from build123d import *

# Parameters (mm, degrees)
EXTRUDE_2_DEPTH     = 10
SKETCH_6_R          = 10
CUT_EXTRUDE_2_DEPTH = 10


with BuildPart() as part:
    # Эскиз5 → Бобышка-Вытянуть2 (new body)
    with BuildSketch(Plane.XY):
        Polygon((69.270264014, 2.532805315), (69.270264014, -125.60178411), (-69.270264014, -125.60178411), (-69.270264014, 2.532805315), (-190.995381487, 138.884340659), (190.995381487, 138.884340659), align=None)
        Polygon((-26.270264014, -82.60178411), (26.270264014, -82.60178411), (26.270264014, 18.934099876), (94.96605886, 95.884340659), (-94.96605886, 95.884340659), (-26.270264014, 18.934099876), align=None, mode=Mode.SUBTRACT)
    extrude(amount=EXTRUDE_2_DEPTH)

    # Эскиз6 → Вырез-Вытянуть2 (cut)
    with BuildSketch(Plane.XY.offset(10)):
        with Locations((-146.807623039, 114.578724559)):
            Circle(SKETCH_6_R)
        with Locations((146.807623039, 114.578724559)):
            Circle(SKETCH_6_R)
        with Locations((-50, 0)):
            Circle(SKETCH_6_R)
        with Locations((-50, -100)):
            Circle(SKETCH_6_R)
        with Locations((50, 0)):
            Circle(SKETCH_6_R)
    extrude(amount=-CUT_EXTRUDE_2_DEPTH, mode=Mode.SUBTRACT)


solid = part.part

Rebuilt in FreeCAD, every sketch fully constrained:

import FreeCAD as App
import Part
import Sketcher

V = App.Vector
Q = App.Units.Quantity

doc = App.newDocument("Part")
body = doc.addObject("PartDesign::Body", "Body")

# Sketch on XY plane
sketch1 = body.newObject("Sketcher::SketchObject", "Sketch")
sketch1.AttachmentSupport = (doc.getObject("XY_Plane"), [""])
sketch1.MapMode = "FlatFace"
sketch1.addGeometry(Part.LineSegment(V(69, -126, 0), V(69, 3, 0)), False)
sketch1.addGeometry(Part.LineSegment(V(69, 3, 0), V(191, 139, 0)), False)
sketch1.addGeometry(Part.LineSegment(V(191, 139, 0), V(-191, 139, 0)), False)
sketch1.addGeometry(Part.LineSegment(V(-191, 139, 0), V(-69, 3, 0)), False)
sketch1.addGeometry(Part.LineSegment(V(-69, 3, 0), V(-69, -126, 0)), False)
sketch1.addGeometry(Part.LineSegment(V(-69, -126, 0), V(69, -126, 0)), False)
sketch1.addGeometry(Part.LineSegment(V(-26, -83, 0), V(-26, 19, 0)), False)
sketch1.addGeometry(Part.LineSegment(V(-26, 19, 0), V(-95, 96, 0)), False)
sketch1.addGeometry(Part.LineSegment(V(-95, 96, 0), V(95, 96, 0)), False)
sketch1.addGeometry(Part.LineSegment(V(95, 96, 0), V(26, 19, 0)), False)
sketch1.addGeometry(Part.LineSegment(V(26, 19, 0), V(26, -83, 0)), False)
sketch1.addGeometry(Part.LineSegment(V(26, -83, 0), V(-26, -83, 0)), False)
sketch1.addConstraint(Sketcher.Constraint("Coincident", 0, 2, 1, 1))
sketch1.addConstraint(Sketcher.Constraint("Coincident", 1, 2, 2, 1))
sketch1.addConstraint(Sketcher.Constraint("Coincident", 2, 2, 3, 1))
sketch1.addConstraint(Sketcher.Constraint("Coincident", 3, 2, 4, 1))
sketch1.addConstraint(Sketcher.Constraint("Coincident", 4, 2, 5, 1))
sketch1.addConstraint(Sketcher.Constraint("Coincident", 5, 2, 0, 1))
sketch1.addConstraint(Sketcher.Constraint("Coincident", 6, 2, 7, 1))
sketch1.addConstraint(Sketcher.Constraint("Coincident", 7, 2, 8, 1))
sketch1.addConstraint(Sketcher.Constraint("Coincident", 8, 2, 9, 1))
sketch1.addConstraint(Sketcher.Constraint("Coincident", 9, 2, 10, 1))
sketch1.addConstraint(Sketcher.Constraint("Coincident", 10, 2, 11, 1))
sketch1.addConstraint(Sketcher.Constraint("Coincident", 11, 2, 6, 1))
sketch1.addConstraint(Sketcher.Constraint("Vertical", 0))
sketch1.addConstraint(Sketcher.Constraint("Horizontal", 2))
sketch1.addConstraint(Sketcher.Constraint("Vertical", 4))
sketch1.addConstraint(Sketcher.Constraint("Horizontal", 5))
sketch1.addConstraint(Sketcher.Constraint("Vertical", 6))
sketch1.addConstraint(Sketcher.Constraint("Horizontal", 8))
sketch1.addConstraint(Sketcher.Constraint("Vertical", 10))
sketch1.addConstraint(Sketcher.Constraint("Horizontal", 11))
sketch1.addConstraint(Sketcher.Constraint("Symmetric", 0, 2, 3, 2, -2))
sketch1.addConstraint(Sketcher.Constraint("Symmetric", 6, 2, 9, 2, -2))
sketch1.addConstraint(Sketcher.Constraint("Parallel", 3, 7))
sketch1.addConstraint(Sketcher.Constraint("Parallel", 1, 9))
sketch1.addConstraint(Sketcher.Constraint("Equal", 1, 3))
sketch1.addConstraint(Sketcher.Constraint("DistanceX", 3, 2, 6, 2, Q("43 mm")))
sketch1.addConstraint(Sketcher.Constraint("DistanceY", 7, 2, 2, 2, Q("43 mm")))
sketch1.addConstraint(Sketcher.Constraint("DistanceY", 5, 2, 10, 2, Q("43 mm")))
sketch1.addConstraint(Sketcher.Constraint("DistanceX", 5, 1, 5, 2, Q("138.540528 mm")))
sketch1.addConstraint(Sketcher.Constraint("DistanceY", 0, 1, 0, 2, Q("128.134589 mm")))
sketch1.addConstraint(Sketcher.Constraint("DistanceY", -1, 1, 6, 2, Q("18.9341 mm")))
sketch1.addConstraint(Sketcher.Constraint("DistanceX", 2, 2, 2, 1, Q("381.990763 mm")))
sketch1.addConstraint(Sketcher.Constraint("DistanceX", 8, 1, 8, 2, Q("189.932118 mm")))
sketch1.addConstraint(Sketcher.Constraint("DistanceY", 6, 1, 6, 2, Q("101.535884 mm")))
pad1 = body.newObject("PartDesign::Pad", "Pad")
pad1.Profile = sketch1
pad1.Length = 10

# Sketch on XY plane
sketch2 = body.newObject("Sketcher::SketchObject", "Sketch001")
sketch2.AttachmentSupport = (doc.getObject("XY_Plane"), [""])
sketch2.MapMode = "FlatFace"
sketch2.AttachmentOffset = App.Placement(V(0, 0, 10), App.Rotation())
sketch2.addGeometry(Part.Circle(V(-147, 115, 0), V(0, 0, 1), 10), False)
sketch2.addGeometry(Part.Circle(V(147, 115, 0), V(0, 0, 1), 10), False)
sketch2.addGeometry(Part.Circle(V(-50, 0, 0), V(0, 0, 1), 10), False)
sketch2.addGeometry(Part.Circle(V(-50, -100, 0), V(0, 0, 1), 10), False)
sketch2.addGeometry(Part.Circle(V(50, 0, 0), V(0, 0, 1), 10), False)
sketch2.addConstraint(Sketcher.Constraint("Equal", 0, 1))
sketch2.addConstraint(Sketcher.Constraint("Equal", 1, 2))
sketch2.addConstraint(Sketcher.Constraint("Equal", 2, 3))
sketch2.addConstraint(Sketcher.Constraint("Equal", 3, 4))
sketch2.addConstraint(Sketcher.Constraint("Symmetric", 2, 3, 4, 3, -1, 1))
sketch2.addConstraint(Sketcher.Constraint("Symmetric", 0, 3, 1, 3, -2))
sketch2.addConstraint(Sketcher.Constraint("PointOnObject", 2, 3, -1))
sketch2.addConstraint(Sketcher.Constraint("Vertical", 2, 3, 3, 3))
sketch2.addConstraint(Sketcher.Constraint("Diameter", 0, Q("20 mm")))
sketch2.addConstraint(Sketcher.Constraint("DistanceX", 2, 3, -1, 1, Q("50 mm")))
sketch2.addConstraint(Sketcher.Constraint("DistanceY", 3, 3, -1, 1, Q("100 mm")))
sketch2.addConstraint(Sketcher.Constraint("DistanceX", 0, 3, -1, 1, Q("146.807623 mm")))
sketch2.addConstraint(Sketcher.Constraint("DistanceY", -1, 1, 0, 3, Q("114.578725 mm")))
pocket1 = body.newObject("PartDesign::Pocket", "Pocket")
pocket1.Profile = sketch2
pocket1.Length = 10

doc.recompute()
